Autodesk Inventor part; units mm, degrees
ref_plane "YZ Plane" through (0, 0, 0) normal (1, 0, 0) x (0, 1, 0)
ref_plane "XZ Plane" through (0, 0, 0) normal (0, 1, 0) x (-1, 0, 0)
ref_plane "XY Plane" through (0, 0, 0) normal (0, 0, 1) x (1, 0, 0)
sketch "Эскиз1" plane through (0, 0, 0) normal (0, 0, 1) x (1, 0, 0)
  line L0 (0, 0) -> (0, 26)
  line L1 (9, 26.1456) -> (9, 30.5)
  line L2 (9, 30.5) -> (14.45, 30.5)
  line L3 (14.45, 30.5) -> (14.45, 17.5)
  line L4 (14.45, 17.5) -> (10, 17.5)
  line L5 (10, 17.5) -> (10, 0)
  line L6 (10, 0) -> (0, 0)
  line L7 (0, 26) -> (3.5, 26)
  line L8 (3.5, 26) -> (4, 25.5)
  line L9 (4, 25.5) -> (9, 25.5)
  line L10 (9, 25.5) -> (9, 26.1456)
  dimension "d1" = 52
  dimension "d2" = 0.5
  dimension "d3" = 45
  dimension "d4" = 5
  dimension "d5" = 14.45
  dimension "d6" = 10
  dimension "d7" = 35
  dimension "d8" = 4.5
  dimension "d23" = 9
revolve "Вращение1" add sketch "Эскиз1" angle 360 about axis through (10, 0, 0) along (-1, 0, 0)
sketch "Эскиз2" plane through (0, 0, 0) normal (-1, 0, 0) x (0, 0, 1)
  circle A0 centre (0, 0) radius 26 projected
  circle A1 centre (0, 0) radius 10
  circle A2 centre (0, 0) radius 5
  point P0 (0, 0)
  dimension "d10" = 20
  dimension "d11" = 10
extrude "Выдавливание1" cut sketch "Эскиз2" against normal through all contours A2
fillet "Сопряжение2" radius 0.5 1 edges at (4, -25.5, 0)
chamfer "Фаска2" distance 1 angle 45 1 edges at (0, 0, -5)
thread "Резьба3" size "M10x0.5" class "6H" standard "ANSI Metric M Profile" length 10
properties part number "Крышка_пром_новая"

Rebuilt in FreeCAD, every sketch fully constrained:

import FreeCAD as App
import Part
import Sketcher

V = App.Vector
Q = App.Units.Quantity


def edges_at(feature, points):
    """Names of the edges that pass closest to the given points."""
    edges = feature.Shape.Edges
    near = lambda p: min(range(len(edges)), key=lambda i: edges[i].distToShape(Part.Vertex(*p))[0])
    return sorted({f"Edge{near(p) + 1}" for p in points})

doc = App.newDocument("Part")
body = doc.addObject("PartDesign::Body", "Body")

sketch1 = body.newObject("Sketcher::SketchObject", "Sketch")
sketch1.AttachmentSupport = (doc.getObject("XY_Plane"), [""])
sketch1.MapMode = "FlatFace"
sketch1.addGeometry([
    Part.LineSegment(V(0, 26, 0), V(0, 0, 0)),
    Part.LineSegment(V(0, 0, 0), V(10, 0, 0)),
    Part.LineSegment(V(10, 0, 0), V(10, 17.5, 0)),
    Part.LineSegment(V(10, 17.5, 0), V(14.4, 17.5, 0)),
    Part.LineSegment(V(14.4, 17.5, 0), V(14.4, 30.5, 0)),
    Part.LineSegment(V(14.4, 30.5, 0), V(9, 30.5, 0)),
    Part.LineSegment(V(9, 30.5, 0), V(9, 25.5, 0)),
    Part.LineSegment(V(9, 25.5, 0), V(4, 25.5, 0)),
    Part.LineSegment(V(4, 25.5, 0), V(3.5, 26, 0)),
    Part.LineSegment(V(3.5, 26, 0), V(0, 26, 0)),
], False)
sketch1.addConstraint([
    Sketcher.Constraint("Coincident", 0, 2, 1, 1),
    Sketcher.Constraint("Coincident", 1, 2, 2, 1),
    Sketcher.Constraint("Coincident", 2, 2, 3, 1),
    Sketcher.Constraint("Coincident", 3, 2, 4, 1),
    Sketcher.Constraint("Coincident", 4, 2, 5, 1),
    Sketcher.Constraint("Coincident", 5, 2, 6, 1),
    Sketcher.Constraint("Coincident", 6, 2, 7, 1),
    Sketcher.Constraint("Coincident", 7, 2, 8, 1),
    Sketcher.Constraint("Coincident", 8, 2, 9, 1),
    Sketcher.Constraint("Coincident", 9, 2, 0, 1),
    Sketcher.Constraint("Vertical", 0),
    Sketcher.Constraint("Horizontal", 1),
    Sketcher.Constraint("Vertical", 2),
    Sketcher.Constraint("Horizontal", 3),
    Sketcher.Constraint("Vertical", 4),
    Sketcher.Constraint("Horizontal", 5),
    Sketcher.Constraint("Vertical", 6),
    Sketcher.Constraint("Horizontal", 7),
    Sketcher.Constraint("Horizontal", 9),
    Sketcher.Constraint("Coincident", 0, 2, -1, 1),
    Sketcher.Constraint("Equal", 7, 6),
    Sketcher.Constraint("DistanceX", 1, 1, 1, 2, Q("10 mm")),
    Sketcher.Constraint("DistanceX", 7, 2, 7, 1, Q("5 mm")),
    Sketcher.Constraint("DistanceX", -1, 1, 5, 2, Q("9 mm")),
    Sketcher.Constraint("DistanceX", 8, 2, 7, 2, Q("0.5 mm")),
    Sketcher.Constraint("DistanceY", 7, 2, 8, 2, Q("0.5 mm")),
    Sketcher.Constraint("DistanceY", 0, 2, 0, 1, Q("26 mm")),
    Sketcher.Constraint("DistanceY", 4, 1, 4, 2, Q("13 mm")),
    Sketcher.Constraint("DistanceX", -1, 1, 3, 2, Q("14.45 mm")),
])
revolution = body.newObject("PartDesign::Revolution", "Revolution")
revolution.Profile = sketch1
revolution.ReferenceAxis = (sketch1, ["H_Axis"])
revolution.Angle = 360

sketch2 = body.newObject("Sketcher::SketchObject", "Sketch001")
sketch2.AttachmentSupport = (doc.getObject("YZ_Plane"), [""])
sketch2.MapMode = "FlatFace"
sketch2.addGeometry(Part.Circle(V(0, 0, 0), V(0, 0, 1), 5), False)
sketch2.addConstraint([
    Sketcher.Constraint("Coincident", 0, 3, -1, 1),
    Sketcher.Constraint("Diameter", 0, Q("10 mm")),
])
pocket1 = body.newObject("PartDesign::Pocket", "Pocket")
pocket1.Profile = sketch2
pocket1.Type = "ThroughAll"
pocket1.Reversed = True
doc.recompute()

fillet = body.newObject("PartDesign::Fillet", "Fillet")
fillet.Base = (pocket1, edges_at(pocket1, [(4, -25.5, 0)]))
fillet.Radius = 0.5
doc.recompute()

chamfer = body.newObject("PartDesign::Chamfer", "Chamfer")
chamfer.Base = (fillet, edges_at(fillet, [(0, 0, -5)]))
chamfer.Size = 1

doc.recompute()
